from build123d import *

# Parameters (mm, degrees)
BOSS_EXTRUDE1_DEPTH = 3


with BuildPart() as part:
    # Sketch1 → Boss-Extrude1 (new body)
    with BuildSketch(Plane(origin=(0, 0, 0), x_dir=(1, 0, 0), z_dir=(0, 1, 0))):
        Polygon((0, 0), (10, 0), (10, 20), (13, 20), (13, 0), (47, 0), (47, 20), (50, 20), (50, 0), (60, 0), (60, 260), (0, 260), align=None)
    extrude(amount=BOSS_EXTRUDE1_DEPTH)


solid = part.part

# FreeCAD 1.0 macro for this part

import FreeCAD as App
import Part
import Sketcher

V = App.Vector
Q = App.Units.Quantity

doc = App.newDocument("Part")
body = doc.addObject("PartDesign::Body", "Body")

sketch1 = body.newObject("Sketcher::SketchObject", "Sketch")
sketch1.AttachmentSupport = (doc.getObject("XZ_Plane"), [""])
sketch1.MapMode = "FlatFace"
sketch1.addGeometry(Part.LineSegment(V(0, 0, 0), V(10, 0, 0)), False)
sketch1.addGeometry(Part.LineSegment(V(10, 0, 0), V(10, -20, 0)), False)
sketch1.addGeometry(Part.LineSegment(V(10, -20, 0), V(13, -20, 0)), False)
sketch1.addGeometry(Part.LineSegment(V(13, -20, 0), V(13, 0, 0)), False)
sketch1.addGeometry(Part.LineSegment(V(13, 0, 0), V(47, 0, 0)), False)
sketch1.addGeometry(Part.LineSegment(V(47, 0, 0), V(47, -20, 0)), False)
sketch1.addGeometry(Part.LineSegment(V(47, -20, 0), V(50, -20, 0)), False)
sketch1.addGeometry(Part.LineSegment(V(50, -20, 0), V(50, 0, 0)), False)
sketch1.addGeometry(Part.LineSegment(V(50, 0, 0), V(60, 0, 0)), False)
sketch1.addGeometry(Part.LineSegment(V(60, 0, 0), V(60, -260, 0)), False)
sketch1.addGeometry(Part.LineSegment(V(60, -260, 0), V(0, -260, 0)), False)
sketch1.addGeometry(Part.LineSegment(V(0, -260, 0), V(0, 0, 0)), False)
sketch1.addConstraint(Sketcher.Constraint("Coincident", 0, 2, 1, 1))
sketch1.addConstraint(Sketcher.Constraint("Coincident", 1, 2, 2, 1))
sketch1.addConstraint(Sketcher.Constraint("Coincident", 2, 2, 3, 1))
sketch1.addConstraint(Sketcher.Constraint("Coincident", 3, 2, 4, 1))
sketch1.addConstraint(Sketcher.Constraint("Coincident", 4, 2, 5, 1))
sketch1.addConstraint(Sketcher.Constraint("Coincident", 5, 2, 6, 1))
sketch1.addConstraint(Sketcher.Constraint("Coincident", 6, 2, 7, 1))
sketch1.addConstraint(Sketcher.Constraint("Coincident", 7, 2, 8, 1))
sketch1.addConstraint(Sketcher.Constraint("Coincident", 8, 2, 9, 1))
sketch1.addConstraint(Sketcher.Constraint("Coincident", 9, 2, 10, 1))
sketch1.addConstraint(Sketcher.Constraint("Coincident", 10, 2, 11, 1))
sketch1.addConstraint(Sketcher.Constraint("Coincident", 11, 2, 0, 1))
sketch1.addConstraint(Sketcher.Constraint("Horizontal", 0))
sketch1.addConstraint(Sketcher.Constraint("Vertical", 1))
sketch1.addConstraint(Sketcher.Constraint("Horizontal", 2))
sketch1.addConstraint(Sketcher.Constraint("Vertical", 3))
sketch1.addConstraint(Sketcher.Constraint("Horizontal", 4))
sketch1.addConstraint(Sketcher.Constraint("Vertical", 5))
sketch1.addConstraint(Sketcher.Constraint("Horizontal", 6))
sketch1.addConstraint(Sketcher.Constraint("Vertical", 7))
sketch1.addConstraint(Sketcher.Constraint("Horizontal", 8))
sketch1.addConstraint(Sketcher.Constraint("Vertical", 9))
sketch1.addConstraint(Sketcher.Constraint("Horizontal", 10))
sketch1.addConstraint(Sketcher.Constraint("Vertical", 11))
sketch1.addConstraint(Sketcher.Constraint("Coincident", 11, 2, -1, 1))
sketch1.addConstraint(Sketcher.Constraint("PointOnObject", 3, 2, -1))
sketch1.addConstraint(Sketcher.Constraint("PointOnObject", 7, 2, -1))
sketch1.addConstraint(Sketcher.Constraint("Horizontal", 2, 2, 5, 2))
sketch1.addConstraint(Sketcher.Constraint("Equal", 2, 6))
sketch1.addConstraint(Sketcher.Constraint("Equal", 0, 8))
sketch1.addConstraint(Sketcher.Constraint("DistanceX", 0, 1, 0, 2, Q("10 mm")))
sketch1.addConstraint(Sketcher.Constraint("DistanceX", 2, 1, 2, 2, Q("3 mm")))
sketch1.addConstraint(Sketcher.Constraint("DistanceX", 4, 1, 4, 2, Q("34 mm")))
sketch1.addConstraint(Sketcher.Constraint("DistanceY", 1, 2, 1, 1, Q("20 mm")))
sketch1.addConstraint(Sketcher.Constraint("DistanceY", 9, 2, 9, 1, Q("260 mm")))
pad1 = body.newObject("PartDesign::Pad", "Pad")
pad1.Profile = sketch1
pad1.Length = 3
pad1.Reversed = True

doc.recompute()
